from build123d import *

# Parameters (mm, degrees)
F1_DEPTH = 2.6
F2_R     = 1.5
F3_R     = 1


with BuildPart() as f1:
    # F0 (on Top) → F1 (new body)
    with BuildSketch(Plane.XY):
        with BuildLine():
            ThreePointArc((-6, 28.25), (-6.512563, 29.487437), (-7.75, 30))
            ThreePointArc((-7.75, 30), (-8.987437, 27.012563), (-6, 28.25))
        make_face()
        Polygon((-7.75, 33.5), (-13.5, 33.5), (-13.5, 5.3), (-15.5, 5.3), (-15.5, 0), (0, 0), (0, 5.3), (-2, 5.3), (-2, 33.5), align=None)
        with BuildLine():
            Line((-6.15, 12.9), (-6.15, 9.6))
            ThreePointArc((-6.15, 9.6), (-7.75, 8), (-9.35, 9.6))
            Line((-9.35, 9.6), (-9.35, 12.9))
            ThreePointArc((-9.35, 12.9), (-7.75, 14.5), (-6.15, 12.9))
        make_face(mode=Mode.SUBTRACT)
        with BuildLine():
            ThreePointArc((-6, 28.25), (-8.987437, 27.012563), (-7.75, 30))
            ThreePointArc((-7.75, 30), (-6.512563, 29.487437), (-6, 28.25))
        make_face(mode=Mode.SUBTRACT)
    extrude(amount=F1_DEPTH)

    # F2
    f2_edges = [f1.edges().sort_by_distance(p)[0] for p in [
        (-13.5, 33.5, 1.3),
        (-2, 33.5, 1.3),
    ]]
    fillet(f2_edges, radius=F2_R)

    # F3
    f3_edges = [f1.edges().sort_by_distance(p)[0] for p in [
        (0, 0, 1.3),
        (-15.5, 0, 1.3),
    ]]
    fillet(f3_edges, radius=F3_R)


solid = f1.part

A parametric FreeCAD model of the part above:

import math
import FreeCAD as App
import Part
import Sketcher
from FreeCAD import Vector


def edges_at(feature, points):
    """Names of the edges that pass closest to the given points."""
    edges = feature.Shape.Edges
    near = lambda p: min(range(len(edges)), key=lambda i: edges[i].distToShape(Part.Vertex(*p))[0])
    return sorted({f"Edge{near(p) + 1}" for p in points})


def add_polygon(sketch, points):
    """Adds a closed chain of lines whose ends are joined by coincident constraints."""
    first, n = sketch.GeometryCount, len(points)
    for a, b in zip(points, points[1:] + points[:1]):
        sketch.addGeometry(Part.LineSegment(App.Vector(*a, 0), App.Vector(*b, 0)), False)
    for i in range(n):
        sketch.addConstraint(Sketcher.Constraint("Coincident", first + i, 2, first + (i + 1) % n, 1))

doc = App.newDocument("Part")
body = doc.addObject("PartDesign::Body", "Body")

sketch1 = body.newObject("Sketcher::SketchObject", "Sketch")
sketch1.AttachmentSupport = (doc.getObject("XY_Plane"), [""])
sketch1.MapMode = "FlatFace"
add_polygon(sketch1, [(-13.5, 33.5), (-13.5, 5.3), (-15.5, 5.3), (-15.5, 0), (0, 0), (0, 5.3), (-2, 5.3), (-2, 33.5)])
sketch1.addGeometry(Part.ArcOfCircle(Part.Circle(Vector(-7.75, 12.9, 0), Vector(0, 0, 1), 1.6), math.radians(0), math.radians(180)), False)
sketch1.addGeometry(Part.LineSegment(Vector(-6.15, 12.9, 0), Vector(-6.15, 9.6, 0)), False)
sketch1.addGeometry(Part.ArcOfCircle(Part.Circle(Vector(-7.75, 9.6, 0), Vector(0, 0, 1), 1.6), math.radians(180), math.radians(360)), False)
sketch1.addGeometry(Part.LineSegment(Vector(-9.35, 9.6, 0), Vector(-9.35, 12.9, 0)), False)
sketch1.addGeometry(Part.ArcOfCircle(Part.Circle(Vector(-7.75, 28.25, 0), Vector(0, 0, 1), 1.75), math.radians(-0.000015), math.radians(90.000015)), False)
sketch1.addGeometry(Part.ArcOfCircle(Part.Circle(Vector(-7.75, 28.25, 0), Vector(0, 0, 1), 1.75), math.radians(89.999997), math.radians(360.000003)), False)
sketch1.addConstraint([
    Sketcher.Constraint("Tangent", 8, 1, 9, 1),
    Sketcher.Constraint("Tangent", 9, 2, 10, 2),
    Sketcher.Constraint("Tangent", 10, 1, 11, 1),
    Sketcher.Constraint("Tangent", 11, 2, 8, 2),
    Sketcher.Constraint("Tangent", 12, 1, 13, 2),
    Sketcher.Constraint("Coincident", 13, 1, 12, 2),
    Sketcher.Constraint("Vertical", 0),
    Sketcher.Constraint("Horizontal", 1),
    Sketcher.Constraint("Vertical", 2),
    Sketcher.Constraint("Horizontal", 3),
    Sketcher.Constraint("Vertical", 4),
    Sketcher.Constraint("Horizontal", 5),
    Sketcher.Constraint("Vertical", 6),
    Sketcher.Constraint("Horizontal", 7),
    Sketcher.Constraint("Vertical", 9),
    Sketcher.Constraint("Vertical", 11),
    Sketcher.Constraint("Coincident", 3, 2, -1, 1),
    Sketcher.Constraint("Horizontal", 1, 2, 4, 2),
    Sketcher.Constraint("Horizontal", 13, 3, 12, 1),
    Sketcher.Constraint("Vertical", 10, 3, 12, 3),
    Sketcher.Constraint("Vertical", 12, 3, 13, 1),
    Sketcher.Constraint("Equal", 1, 5),
    Sketcher.Constraint("Radius", 8, 1.6),
    Sketcher.Constraint("DistanceX", 1, 2, 1, 1, 2.0),
    Sketcher.Constraint("Radius", 12, 1.75),
    Sketcher.Constraint("DistanceX", 3, 1, 3, 2, 15.5),
    Sketcher.Constraint("DistanceY", 0, 2, 0, 1, 28.2),
    Sketcher.Constraint("DistanceY", 2, 2, 2, 1, 5.3),
    Sketcher.Constraint("DistanceY", 9, 2, 9, 1, 3.3),
    Sketcher.Constraint("DistanceX", 12, 1, -1, 1, 6.0),
    Sketcher.Constraint("DistanceY", -1, 1, 13, 1, 30.0),
    Sketcher.Constraint("DistanceY", -1, 1, 8, 3, 12.9),
])
pad1 = body.newObject("PartDesign::Pad", "Pad")
pad1.Profile = sketch1
pad1.Length = 2.6
doc.recompute()

fillet = body.newObject("PartDesign::Fillet", "Fillet")
fillet.Base = (pad1, edges_at(pad1, [(-13.5, 33.5, 1.3), (-2, 33.5, 1.3)]))
fillet.Radius = 1.5
doc.recompute()

fillet2 = body.newObject("PartDesign::Fillet", "Fillet001")
fillet2.Base = (fillet, edges_at(fillet, [(0, 0, 1.3), (-15.5, 0, 1.3)]))
fillet2.Radius = 1

doc.recompute()
